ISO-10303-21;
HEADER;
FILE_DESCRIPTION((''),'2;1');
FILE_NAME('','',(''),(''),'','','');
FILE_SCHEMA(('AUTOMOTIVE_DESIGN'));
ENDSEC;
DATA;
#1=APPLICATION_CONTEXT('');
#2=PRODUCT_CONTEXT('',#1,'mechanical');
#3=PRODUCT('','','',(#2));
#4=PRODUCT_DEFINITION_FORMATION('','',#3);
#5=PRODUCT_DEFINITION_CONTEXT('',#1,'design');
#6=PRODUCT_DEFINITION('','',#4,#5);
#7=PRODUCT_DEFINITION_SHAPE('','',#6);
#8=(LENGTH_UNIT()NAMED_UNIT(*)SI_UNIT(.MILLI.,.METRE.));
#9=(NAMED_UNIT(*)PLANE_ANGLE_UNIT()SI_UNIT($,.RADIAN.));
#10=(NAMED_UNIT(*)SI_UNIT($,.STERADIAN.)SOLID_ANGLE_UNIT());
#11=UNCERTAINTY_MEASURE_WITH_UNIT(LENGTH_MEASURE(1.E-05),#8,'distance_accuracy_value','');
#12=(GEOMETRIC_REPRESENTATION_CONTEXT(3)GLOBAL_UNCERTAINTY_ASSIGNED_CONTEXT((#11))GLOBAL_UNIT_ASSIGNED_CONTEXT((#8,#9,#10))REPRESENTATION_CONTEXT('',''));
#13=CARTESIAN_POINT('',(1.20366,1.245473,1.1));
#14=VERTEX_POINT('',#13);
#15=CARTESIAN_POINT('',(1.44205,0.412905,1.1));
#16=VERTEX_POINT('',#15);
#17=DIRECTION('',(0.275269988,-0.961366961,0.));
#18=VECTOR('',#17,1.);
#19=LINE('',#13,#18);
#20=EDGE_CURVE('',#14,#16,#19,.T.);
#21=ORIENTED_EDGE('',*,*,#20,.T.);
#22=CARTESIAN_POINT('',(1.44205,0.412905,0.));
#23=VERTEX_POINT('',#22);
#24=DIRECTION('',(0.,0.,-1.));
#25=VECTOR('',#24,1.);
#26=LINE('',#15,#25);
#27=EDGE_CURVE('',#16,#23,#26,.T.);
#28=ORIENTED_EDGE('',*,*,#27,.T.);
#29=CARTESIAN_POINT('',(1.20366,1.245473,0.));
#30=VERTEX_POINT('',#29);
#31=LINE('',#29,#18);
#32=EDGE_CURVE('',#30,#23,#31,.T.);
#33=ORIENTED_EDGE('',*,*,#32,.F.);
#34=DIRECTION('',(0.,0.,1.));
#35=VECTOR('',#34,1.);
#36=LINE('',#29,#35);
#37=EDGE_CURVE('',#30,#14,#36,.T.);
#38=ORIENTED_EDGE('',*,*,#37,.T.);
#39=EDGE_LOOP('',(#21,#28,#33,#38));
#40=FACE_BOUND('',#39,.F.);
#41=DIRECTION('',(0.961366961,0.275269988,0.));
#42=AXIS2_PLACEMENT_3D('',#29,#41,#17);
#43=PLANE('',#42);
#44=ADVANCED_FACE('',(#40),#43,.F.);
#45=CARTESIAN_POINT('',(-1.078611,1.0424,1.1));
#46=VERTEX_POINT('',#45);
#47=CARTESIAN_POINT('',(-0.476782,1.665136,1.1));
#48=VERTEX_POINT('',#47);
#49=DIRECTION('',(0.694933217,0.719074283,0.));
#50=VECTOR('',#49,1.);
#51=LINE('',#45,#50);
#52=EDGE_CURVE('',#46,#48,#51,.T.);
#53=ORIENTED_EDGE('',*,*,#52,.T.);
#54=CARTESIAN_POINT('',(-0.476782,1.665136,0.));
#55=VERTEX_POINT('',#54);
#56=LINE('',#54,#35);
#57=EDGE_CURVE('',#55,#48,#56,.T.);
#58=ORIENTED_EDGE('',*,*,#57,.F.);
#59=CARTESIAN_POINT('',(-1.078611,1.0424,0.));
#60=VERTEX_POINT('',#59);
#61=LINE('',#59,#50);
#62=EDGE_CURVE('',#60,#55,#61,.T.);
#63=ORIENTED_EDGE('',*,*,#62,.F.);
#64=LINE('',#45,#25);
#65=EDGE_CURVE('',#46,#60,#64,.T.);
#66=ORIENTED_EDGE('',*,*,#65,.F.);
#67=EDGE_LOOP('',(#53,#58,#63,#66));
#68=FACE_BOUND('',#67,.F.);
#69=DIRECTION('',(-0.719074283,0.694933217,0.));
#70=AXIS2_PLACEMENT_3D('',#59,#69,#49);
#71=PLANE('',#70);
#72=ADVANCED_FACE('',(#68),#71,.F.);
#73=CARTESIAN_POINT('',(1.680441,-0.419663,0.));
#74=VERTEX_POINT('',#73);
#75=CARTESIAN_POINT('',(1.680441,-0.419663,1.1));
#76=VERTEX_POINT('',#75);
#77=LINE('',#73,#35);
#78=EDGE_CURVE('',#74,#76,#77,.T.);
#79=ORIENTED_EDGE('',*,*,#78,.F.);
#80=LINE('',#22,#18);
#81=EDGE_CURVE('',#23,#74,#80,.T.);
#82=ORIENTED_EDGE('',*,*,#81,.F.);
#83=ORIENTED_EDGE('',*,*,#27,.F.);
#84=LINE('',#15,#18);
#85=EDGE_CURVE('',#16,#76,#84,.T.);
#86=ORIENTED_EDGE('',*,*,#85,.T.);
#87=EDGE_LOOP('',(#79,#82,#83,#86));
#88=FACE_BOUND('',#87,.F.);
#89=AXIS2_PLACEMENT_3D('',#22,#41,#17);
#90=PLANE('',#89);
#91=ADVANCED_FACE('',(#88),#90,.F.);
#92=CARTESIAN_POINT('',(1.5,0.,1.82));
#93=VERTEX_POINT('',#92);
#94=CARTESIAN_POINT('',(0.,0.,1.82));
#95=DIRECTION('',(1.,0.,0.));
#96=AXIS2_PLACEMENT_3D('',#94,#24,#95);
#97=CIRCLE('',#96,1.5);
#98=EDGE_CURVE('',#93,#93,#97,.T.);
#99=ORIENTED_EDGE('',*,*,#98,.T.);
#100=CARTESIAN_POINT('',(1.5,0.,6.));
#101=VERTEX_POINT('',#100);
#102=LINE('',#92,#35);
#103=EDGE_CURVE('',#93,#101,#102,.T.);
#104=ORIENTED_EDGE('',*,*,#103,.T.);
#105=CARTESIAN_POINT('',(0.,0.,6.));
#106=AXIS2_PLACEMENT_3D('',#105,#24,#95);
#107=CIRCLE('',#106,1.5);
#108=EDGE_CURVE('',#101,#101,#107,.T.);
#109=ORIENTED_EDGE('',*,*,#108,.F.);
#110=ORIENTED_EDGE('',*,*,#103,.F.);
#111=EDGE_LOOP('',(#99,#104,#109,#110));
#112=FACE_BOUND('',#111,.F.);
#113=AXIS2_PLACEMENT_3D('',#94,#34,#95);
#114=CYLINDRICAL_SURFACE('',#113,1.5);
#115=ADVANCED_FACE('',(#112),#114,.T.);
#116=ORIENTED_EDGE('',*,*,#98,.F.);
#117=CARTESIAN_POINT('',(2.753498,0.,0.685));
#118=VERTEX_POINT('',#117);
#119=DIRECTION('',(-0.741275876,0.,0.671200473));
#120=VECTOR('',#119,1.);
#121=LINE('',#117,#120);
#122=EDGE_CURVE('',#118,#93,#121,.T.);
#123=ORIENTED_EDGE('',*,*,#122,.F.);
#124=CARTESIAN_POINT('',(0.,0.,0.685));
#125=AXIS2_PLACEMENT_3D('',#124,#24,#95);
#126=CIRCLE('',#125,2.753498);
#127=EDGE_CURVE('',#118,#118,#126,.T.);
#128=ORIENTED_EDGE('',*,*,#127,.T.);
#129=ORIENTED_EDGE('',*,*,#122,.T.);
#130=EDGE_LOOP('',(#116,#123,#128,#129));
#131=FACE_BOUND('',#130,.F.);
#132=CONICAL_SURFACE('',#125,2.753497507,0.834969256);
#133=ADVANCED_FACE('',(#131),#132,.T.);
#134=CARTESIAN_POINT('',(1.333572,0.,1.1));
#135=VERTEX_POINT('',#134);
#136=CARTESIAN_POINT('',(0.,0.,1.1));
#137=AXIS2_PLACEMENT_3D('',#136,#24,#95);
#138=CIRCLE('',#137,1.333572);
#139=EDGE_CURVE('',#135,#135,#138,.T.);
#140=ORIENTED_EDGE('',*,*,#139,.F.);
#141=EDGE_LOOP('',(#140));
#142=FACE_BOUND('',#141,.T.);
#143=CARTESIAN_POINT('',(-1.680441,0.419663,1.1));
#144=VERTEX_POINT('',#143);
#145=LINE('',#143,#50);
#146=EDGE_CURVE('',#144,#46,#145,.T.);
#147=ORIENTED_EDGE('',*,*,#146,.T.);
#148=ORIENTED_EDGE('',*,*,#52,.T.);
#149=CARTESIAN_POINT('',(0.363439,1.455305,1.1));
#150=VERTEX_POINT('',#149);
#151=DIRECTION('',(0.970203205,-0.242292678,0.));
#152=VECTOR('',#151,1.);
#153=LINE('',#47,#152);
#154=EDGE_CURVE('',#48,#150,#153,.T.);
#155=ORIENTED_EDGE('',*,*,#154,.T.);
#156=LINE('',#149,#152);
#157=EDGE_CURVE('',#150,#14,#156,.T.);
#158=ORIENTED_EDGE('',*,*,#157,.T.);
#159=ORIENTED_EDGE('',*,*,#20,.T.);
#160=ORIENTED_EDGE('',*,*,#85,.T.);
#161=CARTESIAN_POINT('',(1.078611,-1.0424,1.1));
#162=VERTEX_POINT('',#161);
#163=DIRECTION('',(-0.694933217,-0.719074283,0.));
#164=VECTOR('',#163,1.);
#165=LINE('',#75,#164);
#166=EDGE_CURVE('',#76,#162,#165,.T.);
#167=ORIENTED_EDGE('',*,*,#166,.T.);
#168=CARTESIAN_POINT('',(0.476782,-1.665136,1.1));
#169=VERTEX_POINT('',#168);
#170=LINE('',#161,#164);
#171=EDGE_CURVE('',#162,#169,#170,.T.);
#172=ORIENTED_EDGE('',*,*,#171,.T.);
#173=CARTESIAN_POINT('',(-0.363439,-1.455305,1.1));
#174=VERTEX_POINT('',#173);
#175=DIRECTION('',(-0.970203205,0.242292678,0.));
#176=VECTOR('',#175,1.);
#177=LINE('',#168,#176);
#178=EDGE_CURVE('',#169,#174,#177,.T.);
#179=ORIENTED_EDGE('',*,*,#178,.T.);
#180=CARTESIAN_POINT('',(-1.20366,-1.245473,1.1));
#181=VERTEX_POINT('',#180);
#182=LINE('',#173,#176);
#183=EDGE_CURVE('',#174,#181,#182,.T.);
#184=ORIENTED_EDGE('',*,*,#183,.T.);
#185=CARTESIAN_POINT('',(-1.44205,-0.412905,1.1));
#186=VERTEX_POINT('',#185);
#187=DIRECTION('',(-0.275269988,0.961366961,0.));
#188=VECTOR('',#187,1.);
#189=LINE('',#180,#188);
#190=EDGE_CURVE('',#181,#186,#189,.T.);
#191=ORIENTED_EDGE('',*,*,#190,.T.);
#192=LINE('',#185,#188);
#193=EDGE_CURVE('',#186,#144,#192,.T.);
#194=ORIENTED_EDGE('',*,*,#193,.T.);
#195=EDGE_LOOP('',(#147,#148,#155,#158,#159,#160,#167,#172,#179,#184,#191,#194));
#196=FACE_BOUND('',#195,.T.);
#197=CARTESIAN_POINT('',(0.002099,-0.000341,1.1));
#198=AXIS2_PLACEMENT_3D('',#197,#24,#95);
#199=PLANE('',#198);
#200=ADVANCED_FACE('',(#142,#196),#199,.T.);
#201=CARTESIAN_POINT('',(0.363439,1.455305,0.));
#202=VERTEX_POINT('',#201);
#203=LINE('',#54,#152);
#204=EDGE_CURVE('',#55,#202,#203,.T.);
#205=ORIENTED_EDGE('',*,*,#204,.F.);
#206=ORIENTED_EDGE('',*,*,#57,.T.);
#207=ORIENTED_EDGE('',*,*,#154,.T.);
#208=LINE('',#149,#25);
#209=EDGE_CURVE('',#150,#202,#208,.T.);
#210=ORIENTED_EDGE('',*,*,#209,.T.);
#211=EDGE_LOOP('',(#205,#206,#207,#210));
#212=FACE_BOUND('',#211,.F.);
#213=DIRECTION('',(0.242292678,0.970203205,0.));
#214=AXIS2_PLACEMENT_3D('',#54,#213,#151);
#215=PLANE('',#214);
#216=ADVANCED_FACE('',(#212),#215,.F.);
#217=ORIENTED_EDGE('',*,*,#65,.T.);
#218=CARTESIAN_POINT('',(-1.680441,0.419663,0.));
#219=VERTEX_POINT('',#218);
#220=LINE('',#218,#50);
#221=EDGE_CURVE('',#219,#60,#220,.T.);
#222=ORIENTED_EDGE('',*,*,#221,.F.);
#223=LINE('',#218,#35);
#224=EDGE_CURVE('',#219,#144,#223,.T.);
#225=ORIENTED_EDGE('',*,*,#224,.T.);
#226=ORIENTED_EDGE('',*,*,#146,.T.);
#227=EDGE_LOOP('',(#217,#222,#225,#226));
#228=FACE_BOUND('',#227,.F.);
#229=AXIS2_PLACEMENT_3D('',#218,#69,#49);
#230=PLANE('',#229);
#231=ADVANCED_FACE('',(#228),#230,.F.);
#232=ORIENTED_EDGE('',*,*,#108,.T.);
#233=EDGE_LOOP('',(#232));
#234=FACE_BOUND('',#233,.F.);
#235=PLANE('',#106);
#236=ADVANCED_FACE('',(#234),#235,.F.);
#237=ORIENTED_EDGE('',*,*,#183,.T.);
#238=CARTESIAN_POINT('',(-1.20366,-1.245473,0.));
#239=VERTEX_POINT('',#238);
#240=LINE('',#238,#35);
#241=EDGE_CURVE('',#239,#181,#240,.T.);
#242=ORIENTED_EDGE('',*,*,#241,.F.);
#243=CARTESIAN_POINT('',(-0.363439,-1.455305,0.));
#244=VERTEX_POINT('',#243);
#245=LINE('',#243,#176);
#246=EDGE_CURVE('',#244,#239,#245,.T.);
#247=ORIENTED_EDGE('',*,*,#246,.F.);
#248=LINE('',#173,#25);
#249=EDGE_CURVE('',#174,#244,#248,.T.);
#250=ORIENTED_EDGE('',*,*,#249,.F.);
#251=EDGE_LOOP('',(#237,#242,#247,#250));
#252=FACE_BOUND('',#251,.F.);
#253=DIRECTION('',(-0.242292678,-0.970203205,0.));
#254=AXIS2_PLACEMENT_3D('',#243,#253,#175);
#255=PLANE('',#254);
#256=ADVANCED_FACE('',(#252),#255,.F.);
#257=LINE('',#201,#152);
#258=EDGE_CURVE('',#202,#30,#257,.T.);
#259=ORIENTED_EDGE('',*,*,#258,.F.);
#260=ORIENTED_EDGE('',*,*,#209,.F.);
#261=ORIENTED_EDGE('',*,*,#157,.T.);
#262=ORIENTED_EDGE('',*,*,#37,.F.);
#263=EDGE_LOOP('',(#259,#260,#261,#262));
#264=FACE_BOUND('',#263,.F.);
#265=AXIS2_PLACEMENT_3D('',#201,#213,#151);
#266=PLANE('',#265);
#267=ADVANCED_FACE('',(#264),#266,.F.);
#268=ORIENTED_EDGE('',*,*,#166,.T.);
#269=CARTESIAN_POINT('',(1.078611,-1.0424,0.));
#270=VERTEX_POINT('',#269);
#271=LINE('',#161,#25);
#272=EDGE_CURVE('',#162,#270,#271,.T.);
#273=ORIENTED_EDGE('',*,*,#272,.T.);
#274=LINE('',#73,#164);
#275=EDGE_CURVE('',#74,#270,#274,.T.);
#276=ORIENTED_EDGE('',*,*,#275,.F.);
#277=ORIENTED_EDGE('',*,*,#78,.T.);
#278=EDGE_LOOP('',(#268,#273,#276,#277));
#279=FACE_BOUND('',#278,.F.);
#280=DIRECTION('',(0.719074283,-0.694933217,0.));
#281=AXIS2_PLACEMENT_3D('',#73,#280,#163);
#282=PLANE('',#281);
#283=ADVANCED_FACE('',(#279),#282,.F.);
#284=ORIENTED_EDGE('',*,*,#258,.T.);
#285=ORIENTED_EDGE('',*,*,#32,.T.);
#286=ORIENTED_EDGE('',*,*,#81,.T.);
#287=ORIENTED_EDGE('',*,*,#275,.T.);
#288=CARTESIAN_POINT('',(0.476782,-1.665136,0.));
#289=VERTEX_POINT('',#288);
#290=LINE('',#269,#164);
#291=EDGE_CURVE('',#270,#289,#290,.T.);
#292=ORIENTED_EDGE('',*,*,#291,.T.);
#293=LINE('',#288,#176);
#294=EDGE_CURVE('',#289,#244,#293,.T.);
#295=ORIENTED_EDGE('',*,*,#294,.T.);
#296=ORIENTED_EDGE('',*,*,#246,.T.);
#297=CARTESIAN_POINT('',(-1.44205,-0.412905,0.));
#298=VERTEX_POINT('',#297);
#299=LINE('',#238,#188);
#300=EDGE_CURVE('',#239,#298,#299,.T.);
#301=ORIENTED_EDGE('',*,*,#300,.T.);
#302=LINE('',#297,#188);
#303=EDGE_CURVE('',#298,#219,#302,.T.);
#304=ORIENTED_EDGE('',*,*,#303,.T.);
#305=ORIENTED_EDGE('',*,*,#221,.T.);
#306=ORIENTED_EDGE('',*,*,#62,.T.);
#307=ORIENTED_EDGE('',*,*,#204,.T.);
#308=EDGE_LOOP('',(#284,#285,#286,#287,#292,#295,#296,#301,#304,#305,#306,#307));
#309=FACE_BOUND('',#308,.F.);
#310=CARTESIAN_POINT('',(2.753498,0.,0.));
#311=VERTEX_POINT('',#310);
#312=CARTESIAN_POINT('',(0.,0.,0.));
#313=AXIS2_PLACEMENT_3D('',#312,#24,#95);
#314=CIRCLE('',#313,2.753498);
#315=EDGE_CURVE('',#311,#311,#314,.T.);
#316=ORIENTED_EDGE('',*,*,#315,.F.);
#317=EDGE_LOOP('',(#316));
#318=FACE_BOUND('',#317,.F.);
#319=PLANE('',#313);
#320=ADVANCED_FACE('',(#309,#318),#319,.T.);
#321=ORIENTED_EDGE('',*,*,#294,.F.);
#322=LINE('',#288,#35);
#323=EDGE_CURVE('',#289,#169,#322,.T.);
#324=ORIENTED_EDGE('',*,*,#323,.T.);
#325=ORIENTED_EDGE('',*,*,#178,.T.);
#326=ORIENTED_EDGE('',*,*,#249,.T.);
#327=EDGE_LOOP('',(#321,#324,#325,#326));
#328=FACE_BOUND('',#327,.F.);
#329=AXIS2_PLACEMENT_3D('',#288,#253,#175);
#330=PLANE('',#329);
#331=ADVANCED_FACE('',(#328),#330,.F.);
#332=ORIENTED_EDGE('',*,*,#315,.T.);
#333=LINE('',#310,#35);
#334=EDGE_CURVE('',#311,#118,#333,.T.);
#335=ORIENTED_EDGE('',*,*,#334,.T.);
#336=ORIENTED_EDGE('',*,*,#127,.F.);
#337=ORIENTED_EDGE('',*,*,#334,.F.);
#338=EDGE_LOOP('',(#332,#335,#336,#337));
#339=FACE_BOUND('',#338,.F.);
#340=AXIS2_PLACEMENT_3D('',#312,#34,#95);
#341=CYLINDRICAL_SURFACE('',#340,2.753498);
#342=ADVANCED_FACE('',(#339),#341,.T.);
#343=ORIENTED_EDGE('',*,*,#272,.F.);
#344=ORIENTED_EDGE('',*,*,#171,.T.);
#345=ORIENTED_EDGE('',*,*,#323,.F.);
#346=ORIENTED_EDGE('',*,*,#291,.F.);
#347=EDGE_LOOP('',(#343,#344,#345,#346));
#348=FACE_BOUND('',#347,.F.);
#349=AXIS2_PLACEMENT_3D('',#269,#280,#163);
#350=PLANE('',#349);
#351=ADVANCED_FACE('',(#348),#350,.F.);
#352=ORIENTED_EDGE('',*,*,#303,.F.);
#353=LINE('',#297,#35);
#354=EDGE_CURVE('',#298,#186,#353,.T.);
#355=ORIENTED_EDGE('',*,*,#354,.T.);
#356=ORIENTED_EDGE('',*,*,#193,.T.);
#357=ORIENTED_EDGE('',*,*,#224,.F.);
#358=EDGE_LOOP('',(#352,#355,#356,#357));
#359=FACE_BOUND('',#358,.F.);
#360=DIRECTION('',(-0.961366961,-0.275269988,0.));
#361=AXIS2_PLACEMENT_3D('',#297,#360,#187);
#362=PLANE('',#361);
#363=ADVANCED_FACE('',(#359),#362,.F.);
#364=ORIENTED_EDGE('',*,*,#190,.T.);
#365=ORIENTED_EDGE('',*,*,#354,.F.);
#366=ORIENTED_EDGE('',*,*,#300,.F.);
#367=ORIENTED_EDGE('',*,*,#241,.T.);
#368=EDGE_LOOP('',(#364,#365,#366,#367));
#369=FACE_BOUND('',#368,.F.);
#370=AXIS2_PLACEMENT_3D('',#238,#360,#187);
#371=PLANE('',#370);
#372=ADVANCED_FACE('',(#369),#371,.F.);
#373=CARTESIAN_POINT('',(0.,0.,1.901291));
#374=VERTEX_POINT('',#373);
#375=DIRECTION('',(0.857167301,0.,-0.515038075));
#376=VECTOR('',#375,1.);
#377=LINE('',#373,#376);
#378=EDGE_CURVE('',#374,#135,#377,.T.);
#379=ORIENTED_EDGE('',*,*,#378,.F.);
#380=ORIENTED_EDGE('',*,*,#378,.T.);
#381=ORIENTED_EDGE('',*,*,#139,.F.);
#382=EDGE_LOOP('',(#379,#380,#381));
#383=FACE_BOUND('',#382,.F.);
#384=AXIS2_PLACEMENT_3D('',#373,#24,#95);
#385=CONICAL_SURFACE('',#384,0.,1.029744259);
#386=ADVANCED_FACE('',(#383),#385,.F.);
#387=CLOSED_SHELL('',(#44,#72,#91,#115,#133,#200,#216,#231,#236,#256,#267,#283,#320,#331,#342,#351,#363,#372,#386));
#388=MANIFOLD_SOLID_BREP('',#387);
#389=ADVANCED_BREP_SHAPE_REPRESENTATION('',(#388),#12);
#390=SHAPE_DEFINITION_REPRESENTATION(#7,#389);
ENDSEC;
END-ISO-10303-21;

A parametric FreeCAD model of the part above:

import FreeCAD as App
import Part
import Sketcher

V = App.Vector
Q = App.Units.Quantity


def add_polygon(sketch, points):
    """Adds a closed chain of lines whose ends are joined by coincident constraints."""
    first, n = sketch.GeometryCount, len(points)
    for a, b in zip(points, points[1:] + points[:1]):
        sketch.addGeometry(Part.LineSegment(App.Vector(*a, 0), App.Vector(*b, 0)), False)
    for i in range(n):
        sketch.addConstraint(Sketcher.Constraint("Coincident", first + i, 2, first + (i + 1) % n, 1))

doc = App.newDocument("Part")
body = doc.addObject("PartDesign::Body", "Body")

sketch1 = body.newObject("Sketcher::SketchObject", "Sketch")
sketch1.AttachmentSupport = (doc.getObject("XZ_Plane"), [""])
sketch1.MapMode = "FlatFace"
add_polygon(sketch1, [(1.5, 6), (0, 6), (0, 0), (2.8, 0), (2.8, 0.7), (1.5, 1.8)])
sketch1.addConstraint([
    Sketcher.Constraint("Horizontal", 0),
    Sketcher.Constraint("Vertical", 1),
    Sketcher.Constraint("Horizontal", 2),
    Sketcher.Constraint("Vertical", 3),
    Sketcher.Constraint("Vertical", 5),
    Sketcher.Constraint("Coincident", 1, 2, -1, 1),
    Sketcher.Constraint("DistanceY", 1, 2, 1, 1, Q("6 mm")),
    Sketcher.Constraint("DistanceX", 0, 2, 0, 1, Q("1.5 mm")),
    Sketcher.Constraint("DistanceY", 5, 1, 5, 2, Q("4.18 mm")),
    Sketcher.Constraint("DistanceY", 3, 1, 3, 2, Q("0.685 mm")),
    Sketcher.Constraint("Distance", 4, Q("1.691 mm")),
])
revolution = body.newObject("PartDesign::Revolution", "Revolution")
revolution.Profile = sketch1
revolution.ReferenceAxis = (sketch1, ["V_Axis"])
revolution.Angle = 360

sketch2 = body.newObject("Sketcher::SketchObject", "Sketch001")
sketch2.AttachmentSupport = (doc.getObject("XY_Plane"), [""])
sketch2.MapMode = "FlatFace"
sketch2.addGeometry(Part.Circle(V(0, 0, 0), V(0, 0, 1), 1.5), False)
sketch2.addConstraint([
    Sketcher.Constraint("Coincident", 0, 3, -1, 1),
    Sketcher.Constraint("Diameter", 0, Q("3 mm")),
])
doc.recompute()
hole = body.newObject("PartDesign::Hole", "Hole")
hole.Profile = sketch2
hole.ThreadType = "None"
hole.Diameter = 3
hole.DepthType = "Dimension"
hole.Depth = 1
hole.DrillPoint = "Angled"
hole.DrillPointAngle = 118
hole.Reversed = True

sketch3 = body.newObject("Sketcher::SketchObject", "Sketch002")
sketch3.AttachmentSupport = (doc.getObject("XY_Plane"), [""])
sketch3.MapMode = "FlatFace"
add_polygon(sketch3, [(-1.1, 1), (-0.5, 1.7), (0.4, 1.5), (1.2, 1.2), (1.4, 0.4), (1.7, -0.4), (1.1, -1), (0.5, -1.7), (-0.4, -1.5), (-1.2, -1.2), (-1.4, -0.4), (-1.7, 0.4)])
sketch3.addConstraint([
    Sketcher.Constraint("Symmetric", 0, 2, 6, 2, -1, 1),
    Sketcher.Constraint("Symmetric", 1, 2, 7, 2, -1, 1),
    Sketcher.Constraint("Symmetric", 2, 2, 8, 2, -1, 1),
    Sketcher.Constraint("Symmetric", 3, 2, 9, 2, -1, 1),
    Sketcher.Constraint("Symmetric", 4, 2, 10, 2, -1, 1),
    Sketcher.Constraint("Symmetric", 5, 2, 11, 2, -1, 1),
    Sketcher.Constraint("Parallel", 1, 2),
    Sketcher.Constraint("Parallel", 3, 4),
    Sketcher.Constraint("Parallel", 0, 5),
    Sketcher.Constraint("Equal", 0, 1),
    Sketcher.Constraint("Equal", 1, 2),
    Sketcher.Constraint("Equal", 2, 3),
    Sketcher.Constraint("Equal", 3, 4),
    Sketcher.Constraint("Equal", 4, 5),
    Sketcher.Constraint("DistanceY", 5, 2, -1, 1, Q("1.0424 mm")),
    Sketcher.Constraint("DistanceX", 8, 2, 4, 2, Q("2.884101 mm")),
    Sketcher.Constraint("DistanceX", 0, 2, -1, 1, Q("0.476782 mm")),
    Sketcher.Constraint("DistanceX", -1, 1, 1, 2, Q("0.363439 mm")),
])
pocket1 = body.newObject("PartDesign::Pocket", "Pocket")
pocket1.Profile = sketch3
pocket1.Length = 1.1
pocket1.Reversed = True

doc.recompute()
